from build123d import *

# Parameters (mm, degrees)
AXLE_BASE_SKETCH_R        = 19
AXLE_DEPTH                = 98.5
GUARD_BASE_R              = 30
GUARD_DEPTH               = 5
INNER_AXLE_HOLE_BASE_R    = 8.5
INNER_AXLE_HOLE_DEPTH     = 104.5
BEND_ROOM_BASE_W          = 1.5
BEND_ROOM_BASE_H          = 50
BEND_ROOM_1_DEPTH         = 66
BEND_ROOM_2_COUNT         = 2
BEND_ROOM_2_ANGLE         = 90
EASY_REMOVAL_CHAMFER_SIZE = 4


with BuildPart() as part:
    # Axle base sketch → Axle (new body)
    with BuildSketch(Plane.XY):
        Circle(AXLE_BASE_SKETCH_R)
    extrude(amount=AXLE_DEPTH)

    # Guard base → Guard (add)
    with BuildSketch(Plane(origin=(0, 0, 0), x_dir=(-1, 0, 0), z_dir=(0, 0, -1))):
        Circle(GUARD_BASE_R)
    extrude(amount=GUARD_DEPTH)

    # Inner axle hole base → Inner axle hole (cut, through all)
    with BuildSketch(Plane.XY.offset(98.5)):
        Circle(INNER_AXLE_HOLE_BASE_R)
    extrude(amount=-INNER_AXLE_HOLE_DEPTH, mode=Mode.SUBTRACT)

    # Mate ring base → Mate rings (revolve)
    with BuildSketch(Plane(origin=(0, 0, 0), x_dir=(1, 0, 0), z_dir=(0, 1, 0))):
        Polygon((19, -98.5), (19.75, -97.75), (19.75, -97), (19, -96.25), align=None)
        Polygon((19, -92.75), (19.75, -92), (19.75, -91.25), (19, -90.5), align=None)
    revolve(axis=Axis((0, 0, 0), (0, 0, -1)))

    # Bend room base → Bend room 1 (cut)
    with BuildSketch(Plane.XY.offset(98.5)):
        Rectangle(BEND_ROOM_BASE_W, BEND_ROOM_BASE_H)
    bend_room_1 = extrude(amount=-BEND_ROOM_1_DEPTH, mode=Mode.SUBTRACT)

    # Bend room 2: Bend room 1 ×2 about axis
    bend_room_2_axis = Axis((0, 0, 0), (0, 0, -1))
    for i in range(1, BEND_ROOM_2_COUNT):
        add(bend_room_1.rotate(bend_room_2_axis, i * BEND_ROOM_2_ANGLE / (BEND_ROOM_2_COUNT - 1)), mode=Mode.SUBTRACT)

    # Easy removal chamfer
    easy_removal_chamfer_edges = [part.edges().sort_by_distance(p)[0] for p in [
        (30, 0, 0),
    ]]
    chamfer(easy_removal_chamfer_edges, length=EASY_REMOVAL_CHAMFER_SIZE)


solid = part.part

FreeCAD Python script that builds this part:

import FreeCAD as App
import Part
import Sketcher
from FreeCAD import Vector
Q = App.Units.Quantity


def edges_at(feature, points):
    """Names of the edges that pass closest to the given points."""
    edges = feature.Shape.Edges
    near = lambda p: min(range(len(edges)), key=lambda i: edges[i].distToShape(Part.Vertex(*p))[0])
    return sorted({f"Edge{near(p) + 1}" for p in points})

doc = App.newDocument("Part")
body = doc.addObject("PartDesign::Body", "Body")

# Sketch on XY plane
sketch1 = body.newObject("Sketcher::SketchObject", "Sketch")
sketch1.AttachmentSupport = (doc.getObject("XY_Plane"), [""])
sketch1.MapMode = "FlatFace"
sketch1.addGeometry(Part.Circle(Vector(0, 0, 0), Vector(0, 0, 1), 19), False)
sketch1.addConstraint([
    Sketcher.Constraint("Coincident", 0, 3, -1, 1),
    Sketcher.Constraint("Diameter", 0, Q("38 mm")),
])
pad1 = body.newObject("PartDesign::Pad", "Pad")
pad1.Profile = sketch1
pad1.Length = 98.5

# Sketch on XY plane
sketch2 = body.newObject("Sketcher::SketchObject", "Sketch001")
sketch2.AttachmentSupport = (doc.getObject("XY_Plane"), [""])
sketch2.MapMode = "FlatFace"
sketch2.addGeometry(Part.Circle(Vector(0, 0, 0), Vector(0, 0, 1), 30), False)
sketch2.addConstraint([
    Sketcher.Constraint("Coincident", 0, 3, -1, 1),
    Sketcher.Constraint("Diameter", 0, Q("60 mm")),
])
pad2 = body.newObject("PartDesign::Pad", "Pad001")
pad2.Profile = sketch2
pad2.Length = 5
pad2.Reversed = True

# Sketch on XY plane
sketch3 = body.newObject("Sketcher::SketchObject", "Sketch002")
sketch3.AttachmentSupport = (doc.getObject("XY_Plane"), [""])
sketch3.MapMode = "FlatFace"
sketch3.AttachmentOffset = App.Placement(Vector(0, 0, 98.5), App.Rotation())
sketch3.addGeometry(Part.Circle(Vector(0, 0, 0), Vector(0, 0, 1), 8.5), False)
sketch3.addConstraint([
    Sketcher.Constraint("Coincident", 0, 3, -1, 1),
    Sketcher.Constraint("Diameter", 0, Q("17 mm")),
])
pocket1 = body.newObject("PartDesign::Pocket", "Pocket")
pocket1.Profile = sketch3
pocket1.Type = "ThroughAll"

# Sketch on XZ plane
sketch4 = body.newObject("Sketcher::SketchObject", "Sketch003")
sketch4.AttachmentSupport = (doc.getObject("XZ_Plane"), [""])
sketch4.MapMode = "FlatFace"
sketch4.addGeometry([
    Part.LineSegment(Vector(19, 98.5, 0), Vector(19.75, 97.75, 0)),  # 0
    Part.LineSegment(Vector(19.75, 97.75, 0), Vector(19.75, 97, 0)),  # 1
    Part.LineSegment(Vector(19.75, 97, 0), Vector(19, 96.25, 0)),  # 2
    Part.LineSegment(Vector(19, 96.25, 0), Vector(19, 98.5, 0)),  # 3
    Part.LineSegment(Vector(19, 92.75, 0), Vector(19.75, 92, 0)),  # 4
    Part.LineSegment(Vector(19.75, 92, 0), Vector(19.75, 91.25, 0)),  # 5
    Part.LineSegment(Vector(19.75, 91.25, 0), Vector(19, 90.5, 0)),  # 6
    Part.LineSegment(Vector(19, 90.5, 0), Vector(19, 92.75, 0)),  # 7
], False)
sketch4.addConstraint([
    Sketcher.Constraint("Coincident", 0, 2, 1, 1),
    Sketcher.Constraint("Coincident", 1, 2, 2, 1),
    Sketcher.Constraint("Coincident", 2, 2, 3, 1),
    Sketcher.Constraint("Coincident", 3, 2, 0, 1),
    Sketcher.Constraint("Coincident", 4, 2, 5, 1),
    Sketcher.Constraint("Coincident", 5, 2, 6, 1),
    Sketcher.Constraint("Coincident", 6, 2, 7, 1),
    Sketcher.Constraint("Coincident", 7, 2, 4, 1),
    Sketcher.Constraint("Vertical", 1),
    Sketcher.Constraint("Vertical", 3),
    Sketcher.Constraint("Vertical", 5),
    Sketcher.Constraint("Vertical", 7),
    Sketcher.Constraint("Perpendicular", 0, 2),
    Sketcher.Constraint("Perpendicular", 2, 4),
    Sketcher.Constraint("Perpendicular", 4, 6),
    Sketcher.Constraint("Vertical", 1, 2, 4, 2),
    Sketcher.Constraint("Vertical", 3, 2, 6, 2),
    Sketcher.Constraint("Equal", 1, 5),
    Sketcher.Constraint("Equal", 0, 2),
    Sketcher.Constraint("DistanceY", -1, 1, 1, 2, Q("97 mm")),
    Sketcher.Constraint("DistanceX", -1, 1, 2, 2, Q("19 mm")),
    Sketcher.Constraint("DistanceY", -1, 1, 4, 2, Q("92 mm")),
    Sketcher.Constraint("DistanceY", 5, 2, 2, 2, Q("5 mm")),
    Sketcher.Constraint("DistanceY", 1, 2, 1, 1, Q("0.75 mm")),
])
revolution = body.newObject("PartDesign::Revolution", "Revolution")
revolution.Profile = sketch4
revolution.ReferenceAxis = (sketch4, ["V_Axis"])
revolution.Angle = 360

# Sketch on XY plane
sketch5 = body.newObject("Sketcher::SketchObject", "Sketch004")
sketch5.AttachmentSupport = (doc.getObject("XY_Plane"), [""])
sketch5.MapMode = "FlatFace"
sketch5.AttachmentOffset = App.Placement(Vector(0, 0, 98.5), App.Rotation())
sketch5.addGeometry([
    Part.LineSegment(Vector(-0.75, 25, 0), Vector(-0.75, -25, 0)),
    Part.LineSegment(Vector(-0.75, -25, 0), Vector(0.75, -25, 0)),
    Part.LineSegment(Vector(0.75, -25, 0), Vector(0.75, 25, 0)),
    Part.LineSegment(Vector(0.75, 25, 0), Vector(-0.75, 25, 0)),
], False)
sketch5.addConstraint([
    Sketcher.Constraint("Coincident", 0, 2, 1, 1),
    Sketcher.Constraint("Coincident", 1, 2, 2, 1),
    Sketcher.Constraint("Coincident", 2, 2, 3, 1),
    Sketcher.Constraint("Coincident", 3, 2, 0, 1),
    Sketcher.Constraint("Vertical", 0),
    Sketcher.Constraint("Horizontal", 1),
    Sketcher.Constraint("Vertical", 2),
    Sketcher.Constraint("Horizontal", 3),
    Sketcher.Constraint("Symmetric", 0, 2, 2, 2, -1, 1),
    Sketcher.Constraint("DistanceY", 0, 2, 0, 1, Q("50 mm")),
    Sketcher.Constraint("DistanceX", 1, 1, 1, 2, Q("1.5 mm")),
])
pocket2 = body.newObject("PartDesign::Pocket", "Pocket001")
pocket2.Profile = sketch5
pocket2.Length = 66
doc.recompute()

polarpattern = body.newObject("PartDesign::PolarPattern", "PolarPattern")
polarpattern.Originals = [pocket2]
polarpattern.Axis = (doc.getObject("Z_Axis"), [""])
polarpattern.Angle = 90
polarpattern.Occurrences = 2
polarpattern.Reversed = True
body.Tip = polarpattern
doc.recompute()

chamfer = body.newObject("PartDesign::Chamfer", "Chamfer")
chamfer.Base = (polarpattern, edges_at(polarpattern, [(30, 0, 0)]))
chamfer.Size = 4

doc.recompute()
